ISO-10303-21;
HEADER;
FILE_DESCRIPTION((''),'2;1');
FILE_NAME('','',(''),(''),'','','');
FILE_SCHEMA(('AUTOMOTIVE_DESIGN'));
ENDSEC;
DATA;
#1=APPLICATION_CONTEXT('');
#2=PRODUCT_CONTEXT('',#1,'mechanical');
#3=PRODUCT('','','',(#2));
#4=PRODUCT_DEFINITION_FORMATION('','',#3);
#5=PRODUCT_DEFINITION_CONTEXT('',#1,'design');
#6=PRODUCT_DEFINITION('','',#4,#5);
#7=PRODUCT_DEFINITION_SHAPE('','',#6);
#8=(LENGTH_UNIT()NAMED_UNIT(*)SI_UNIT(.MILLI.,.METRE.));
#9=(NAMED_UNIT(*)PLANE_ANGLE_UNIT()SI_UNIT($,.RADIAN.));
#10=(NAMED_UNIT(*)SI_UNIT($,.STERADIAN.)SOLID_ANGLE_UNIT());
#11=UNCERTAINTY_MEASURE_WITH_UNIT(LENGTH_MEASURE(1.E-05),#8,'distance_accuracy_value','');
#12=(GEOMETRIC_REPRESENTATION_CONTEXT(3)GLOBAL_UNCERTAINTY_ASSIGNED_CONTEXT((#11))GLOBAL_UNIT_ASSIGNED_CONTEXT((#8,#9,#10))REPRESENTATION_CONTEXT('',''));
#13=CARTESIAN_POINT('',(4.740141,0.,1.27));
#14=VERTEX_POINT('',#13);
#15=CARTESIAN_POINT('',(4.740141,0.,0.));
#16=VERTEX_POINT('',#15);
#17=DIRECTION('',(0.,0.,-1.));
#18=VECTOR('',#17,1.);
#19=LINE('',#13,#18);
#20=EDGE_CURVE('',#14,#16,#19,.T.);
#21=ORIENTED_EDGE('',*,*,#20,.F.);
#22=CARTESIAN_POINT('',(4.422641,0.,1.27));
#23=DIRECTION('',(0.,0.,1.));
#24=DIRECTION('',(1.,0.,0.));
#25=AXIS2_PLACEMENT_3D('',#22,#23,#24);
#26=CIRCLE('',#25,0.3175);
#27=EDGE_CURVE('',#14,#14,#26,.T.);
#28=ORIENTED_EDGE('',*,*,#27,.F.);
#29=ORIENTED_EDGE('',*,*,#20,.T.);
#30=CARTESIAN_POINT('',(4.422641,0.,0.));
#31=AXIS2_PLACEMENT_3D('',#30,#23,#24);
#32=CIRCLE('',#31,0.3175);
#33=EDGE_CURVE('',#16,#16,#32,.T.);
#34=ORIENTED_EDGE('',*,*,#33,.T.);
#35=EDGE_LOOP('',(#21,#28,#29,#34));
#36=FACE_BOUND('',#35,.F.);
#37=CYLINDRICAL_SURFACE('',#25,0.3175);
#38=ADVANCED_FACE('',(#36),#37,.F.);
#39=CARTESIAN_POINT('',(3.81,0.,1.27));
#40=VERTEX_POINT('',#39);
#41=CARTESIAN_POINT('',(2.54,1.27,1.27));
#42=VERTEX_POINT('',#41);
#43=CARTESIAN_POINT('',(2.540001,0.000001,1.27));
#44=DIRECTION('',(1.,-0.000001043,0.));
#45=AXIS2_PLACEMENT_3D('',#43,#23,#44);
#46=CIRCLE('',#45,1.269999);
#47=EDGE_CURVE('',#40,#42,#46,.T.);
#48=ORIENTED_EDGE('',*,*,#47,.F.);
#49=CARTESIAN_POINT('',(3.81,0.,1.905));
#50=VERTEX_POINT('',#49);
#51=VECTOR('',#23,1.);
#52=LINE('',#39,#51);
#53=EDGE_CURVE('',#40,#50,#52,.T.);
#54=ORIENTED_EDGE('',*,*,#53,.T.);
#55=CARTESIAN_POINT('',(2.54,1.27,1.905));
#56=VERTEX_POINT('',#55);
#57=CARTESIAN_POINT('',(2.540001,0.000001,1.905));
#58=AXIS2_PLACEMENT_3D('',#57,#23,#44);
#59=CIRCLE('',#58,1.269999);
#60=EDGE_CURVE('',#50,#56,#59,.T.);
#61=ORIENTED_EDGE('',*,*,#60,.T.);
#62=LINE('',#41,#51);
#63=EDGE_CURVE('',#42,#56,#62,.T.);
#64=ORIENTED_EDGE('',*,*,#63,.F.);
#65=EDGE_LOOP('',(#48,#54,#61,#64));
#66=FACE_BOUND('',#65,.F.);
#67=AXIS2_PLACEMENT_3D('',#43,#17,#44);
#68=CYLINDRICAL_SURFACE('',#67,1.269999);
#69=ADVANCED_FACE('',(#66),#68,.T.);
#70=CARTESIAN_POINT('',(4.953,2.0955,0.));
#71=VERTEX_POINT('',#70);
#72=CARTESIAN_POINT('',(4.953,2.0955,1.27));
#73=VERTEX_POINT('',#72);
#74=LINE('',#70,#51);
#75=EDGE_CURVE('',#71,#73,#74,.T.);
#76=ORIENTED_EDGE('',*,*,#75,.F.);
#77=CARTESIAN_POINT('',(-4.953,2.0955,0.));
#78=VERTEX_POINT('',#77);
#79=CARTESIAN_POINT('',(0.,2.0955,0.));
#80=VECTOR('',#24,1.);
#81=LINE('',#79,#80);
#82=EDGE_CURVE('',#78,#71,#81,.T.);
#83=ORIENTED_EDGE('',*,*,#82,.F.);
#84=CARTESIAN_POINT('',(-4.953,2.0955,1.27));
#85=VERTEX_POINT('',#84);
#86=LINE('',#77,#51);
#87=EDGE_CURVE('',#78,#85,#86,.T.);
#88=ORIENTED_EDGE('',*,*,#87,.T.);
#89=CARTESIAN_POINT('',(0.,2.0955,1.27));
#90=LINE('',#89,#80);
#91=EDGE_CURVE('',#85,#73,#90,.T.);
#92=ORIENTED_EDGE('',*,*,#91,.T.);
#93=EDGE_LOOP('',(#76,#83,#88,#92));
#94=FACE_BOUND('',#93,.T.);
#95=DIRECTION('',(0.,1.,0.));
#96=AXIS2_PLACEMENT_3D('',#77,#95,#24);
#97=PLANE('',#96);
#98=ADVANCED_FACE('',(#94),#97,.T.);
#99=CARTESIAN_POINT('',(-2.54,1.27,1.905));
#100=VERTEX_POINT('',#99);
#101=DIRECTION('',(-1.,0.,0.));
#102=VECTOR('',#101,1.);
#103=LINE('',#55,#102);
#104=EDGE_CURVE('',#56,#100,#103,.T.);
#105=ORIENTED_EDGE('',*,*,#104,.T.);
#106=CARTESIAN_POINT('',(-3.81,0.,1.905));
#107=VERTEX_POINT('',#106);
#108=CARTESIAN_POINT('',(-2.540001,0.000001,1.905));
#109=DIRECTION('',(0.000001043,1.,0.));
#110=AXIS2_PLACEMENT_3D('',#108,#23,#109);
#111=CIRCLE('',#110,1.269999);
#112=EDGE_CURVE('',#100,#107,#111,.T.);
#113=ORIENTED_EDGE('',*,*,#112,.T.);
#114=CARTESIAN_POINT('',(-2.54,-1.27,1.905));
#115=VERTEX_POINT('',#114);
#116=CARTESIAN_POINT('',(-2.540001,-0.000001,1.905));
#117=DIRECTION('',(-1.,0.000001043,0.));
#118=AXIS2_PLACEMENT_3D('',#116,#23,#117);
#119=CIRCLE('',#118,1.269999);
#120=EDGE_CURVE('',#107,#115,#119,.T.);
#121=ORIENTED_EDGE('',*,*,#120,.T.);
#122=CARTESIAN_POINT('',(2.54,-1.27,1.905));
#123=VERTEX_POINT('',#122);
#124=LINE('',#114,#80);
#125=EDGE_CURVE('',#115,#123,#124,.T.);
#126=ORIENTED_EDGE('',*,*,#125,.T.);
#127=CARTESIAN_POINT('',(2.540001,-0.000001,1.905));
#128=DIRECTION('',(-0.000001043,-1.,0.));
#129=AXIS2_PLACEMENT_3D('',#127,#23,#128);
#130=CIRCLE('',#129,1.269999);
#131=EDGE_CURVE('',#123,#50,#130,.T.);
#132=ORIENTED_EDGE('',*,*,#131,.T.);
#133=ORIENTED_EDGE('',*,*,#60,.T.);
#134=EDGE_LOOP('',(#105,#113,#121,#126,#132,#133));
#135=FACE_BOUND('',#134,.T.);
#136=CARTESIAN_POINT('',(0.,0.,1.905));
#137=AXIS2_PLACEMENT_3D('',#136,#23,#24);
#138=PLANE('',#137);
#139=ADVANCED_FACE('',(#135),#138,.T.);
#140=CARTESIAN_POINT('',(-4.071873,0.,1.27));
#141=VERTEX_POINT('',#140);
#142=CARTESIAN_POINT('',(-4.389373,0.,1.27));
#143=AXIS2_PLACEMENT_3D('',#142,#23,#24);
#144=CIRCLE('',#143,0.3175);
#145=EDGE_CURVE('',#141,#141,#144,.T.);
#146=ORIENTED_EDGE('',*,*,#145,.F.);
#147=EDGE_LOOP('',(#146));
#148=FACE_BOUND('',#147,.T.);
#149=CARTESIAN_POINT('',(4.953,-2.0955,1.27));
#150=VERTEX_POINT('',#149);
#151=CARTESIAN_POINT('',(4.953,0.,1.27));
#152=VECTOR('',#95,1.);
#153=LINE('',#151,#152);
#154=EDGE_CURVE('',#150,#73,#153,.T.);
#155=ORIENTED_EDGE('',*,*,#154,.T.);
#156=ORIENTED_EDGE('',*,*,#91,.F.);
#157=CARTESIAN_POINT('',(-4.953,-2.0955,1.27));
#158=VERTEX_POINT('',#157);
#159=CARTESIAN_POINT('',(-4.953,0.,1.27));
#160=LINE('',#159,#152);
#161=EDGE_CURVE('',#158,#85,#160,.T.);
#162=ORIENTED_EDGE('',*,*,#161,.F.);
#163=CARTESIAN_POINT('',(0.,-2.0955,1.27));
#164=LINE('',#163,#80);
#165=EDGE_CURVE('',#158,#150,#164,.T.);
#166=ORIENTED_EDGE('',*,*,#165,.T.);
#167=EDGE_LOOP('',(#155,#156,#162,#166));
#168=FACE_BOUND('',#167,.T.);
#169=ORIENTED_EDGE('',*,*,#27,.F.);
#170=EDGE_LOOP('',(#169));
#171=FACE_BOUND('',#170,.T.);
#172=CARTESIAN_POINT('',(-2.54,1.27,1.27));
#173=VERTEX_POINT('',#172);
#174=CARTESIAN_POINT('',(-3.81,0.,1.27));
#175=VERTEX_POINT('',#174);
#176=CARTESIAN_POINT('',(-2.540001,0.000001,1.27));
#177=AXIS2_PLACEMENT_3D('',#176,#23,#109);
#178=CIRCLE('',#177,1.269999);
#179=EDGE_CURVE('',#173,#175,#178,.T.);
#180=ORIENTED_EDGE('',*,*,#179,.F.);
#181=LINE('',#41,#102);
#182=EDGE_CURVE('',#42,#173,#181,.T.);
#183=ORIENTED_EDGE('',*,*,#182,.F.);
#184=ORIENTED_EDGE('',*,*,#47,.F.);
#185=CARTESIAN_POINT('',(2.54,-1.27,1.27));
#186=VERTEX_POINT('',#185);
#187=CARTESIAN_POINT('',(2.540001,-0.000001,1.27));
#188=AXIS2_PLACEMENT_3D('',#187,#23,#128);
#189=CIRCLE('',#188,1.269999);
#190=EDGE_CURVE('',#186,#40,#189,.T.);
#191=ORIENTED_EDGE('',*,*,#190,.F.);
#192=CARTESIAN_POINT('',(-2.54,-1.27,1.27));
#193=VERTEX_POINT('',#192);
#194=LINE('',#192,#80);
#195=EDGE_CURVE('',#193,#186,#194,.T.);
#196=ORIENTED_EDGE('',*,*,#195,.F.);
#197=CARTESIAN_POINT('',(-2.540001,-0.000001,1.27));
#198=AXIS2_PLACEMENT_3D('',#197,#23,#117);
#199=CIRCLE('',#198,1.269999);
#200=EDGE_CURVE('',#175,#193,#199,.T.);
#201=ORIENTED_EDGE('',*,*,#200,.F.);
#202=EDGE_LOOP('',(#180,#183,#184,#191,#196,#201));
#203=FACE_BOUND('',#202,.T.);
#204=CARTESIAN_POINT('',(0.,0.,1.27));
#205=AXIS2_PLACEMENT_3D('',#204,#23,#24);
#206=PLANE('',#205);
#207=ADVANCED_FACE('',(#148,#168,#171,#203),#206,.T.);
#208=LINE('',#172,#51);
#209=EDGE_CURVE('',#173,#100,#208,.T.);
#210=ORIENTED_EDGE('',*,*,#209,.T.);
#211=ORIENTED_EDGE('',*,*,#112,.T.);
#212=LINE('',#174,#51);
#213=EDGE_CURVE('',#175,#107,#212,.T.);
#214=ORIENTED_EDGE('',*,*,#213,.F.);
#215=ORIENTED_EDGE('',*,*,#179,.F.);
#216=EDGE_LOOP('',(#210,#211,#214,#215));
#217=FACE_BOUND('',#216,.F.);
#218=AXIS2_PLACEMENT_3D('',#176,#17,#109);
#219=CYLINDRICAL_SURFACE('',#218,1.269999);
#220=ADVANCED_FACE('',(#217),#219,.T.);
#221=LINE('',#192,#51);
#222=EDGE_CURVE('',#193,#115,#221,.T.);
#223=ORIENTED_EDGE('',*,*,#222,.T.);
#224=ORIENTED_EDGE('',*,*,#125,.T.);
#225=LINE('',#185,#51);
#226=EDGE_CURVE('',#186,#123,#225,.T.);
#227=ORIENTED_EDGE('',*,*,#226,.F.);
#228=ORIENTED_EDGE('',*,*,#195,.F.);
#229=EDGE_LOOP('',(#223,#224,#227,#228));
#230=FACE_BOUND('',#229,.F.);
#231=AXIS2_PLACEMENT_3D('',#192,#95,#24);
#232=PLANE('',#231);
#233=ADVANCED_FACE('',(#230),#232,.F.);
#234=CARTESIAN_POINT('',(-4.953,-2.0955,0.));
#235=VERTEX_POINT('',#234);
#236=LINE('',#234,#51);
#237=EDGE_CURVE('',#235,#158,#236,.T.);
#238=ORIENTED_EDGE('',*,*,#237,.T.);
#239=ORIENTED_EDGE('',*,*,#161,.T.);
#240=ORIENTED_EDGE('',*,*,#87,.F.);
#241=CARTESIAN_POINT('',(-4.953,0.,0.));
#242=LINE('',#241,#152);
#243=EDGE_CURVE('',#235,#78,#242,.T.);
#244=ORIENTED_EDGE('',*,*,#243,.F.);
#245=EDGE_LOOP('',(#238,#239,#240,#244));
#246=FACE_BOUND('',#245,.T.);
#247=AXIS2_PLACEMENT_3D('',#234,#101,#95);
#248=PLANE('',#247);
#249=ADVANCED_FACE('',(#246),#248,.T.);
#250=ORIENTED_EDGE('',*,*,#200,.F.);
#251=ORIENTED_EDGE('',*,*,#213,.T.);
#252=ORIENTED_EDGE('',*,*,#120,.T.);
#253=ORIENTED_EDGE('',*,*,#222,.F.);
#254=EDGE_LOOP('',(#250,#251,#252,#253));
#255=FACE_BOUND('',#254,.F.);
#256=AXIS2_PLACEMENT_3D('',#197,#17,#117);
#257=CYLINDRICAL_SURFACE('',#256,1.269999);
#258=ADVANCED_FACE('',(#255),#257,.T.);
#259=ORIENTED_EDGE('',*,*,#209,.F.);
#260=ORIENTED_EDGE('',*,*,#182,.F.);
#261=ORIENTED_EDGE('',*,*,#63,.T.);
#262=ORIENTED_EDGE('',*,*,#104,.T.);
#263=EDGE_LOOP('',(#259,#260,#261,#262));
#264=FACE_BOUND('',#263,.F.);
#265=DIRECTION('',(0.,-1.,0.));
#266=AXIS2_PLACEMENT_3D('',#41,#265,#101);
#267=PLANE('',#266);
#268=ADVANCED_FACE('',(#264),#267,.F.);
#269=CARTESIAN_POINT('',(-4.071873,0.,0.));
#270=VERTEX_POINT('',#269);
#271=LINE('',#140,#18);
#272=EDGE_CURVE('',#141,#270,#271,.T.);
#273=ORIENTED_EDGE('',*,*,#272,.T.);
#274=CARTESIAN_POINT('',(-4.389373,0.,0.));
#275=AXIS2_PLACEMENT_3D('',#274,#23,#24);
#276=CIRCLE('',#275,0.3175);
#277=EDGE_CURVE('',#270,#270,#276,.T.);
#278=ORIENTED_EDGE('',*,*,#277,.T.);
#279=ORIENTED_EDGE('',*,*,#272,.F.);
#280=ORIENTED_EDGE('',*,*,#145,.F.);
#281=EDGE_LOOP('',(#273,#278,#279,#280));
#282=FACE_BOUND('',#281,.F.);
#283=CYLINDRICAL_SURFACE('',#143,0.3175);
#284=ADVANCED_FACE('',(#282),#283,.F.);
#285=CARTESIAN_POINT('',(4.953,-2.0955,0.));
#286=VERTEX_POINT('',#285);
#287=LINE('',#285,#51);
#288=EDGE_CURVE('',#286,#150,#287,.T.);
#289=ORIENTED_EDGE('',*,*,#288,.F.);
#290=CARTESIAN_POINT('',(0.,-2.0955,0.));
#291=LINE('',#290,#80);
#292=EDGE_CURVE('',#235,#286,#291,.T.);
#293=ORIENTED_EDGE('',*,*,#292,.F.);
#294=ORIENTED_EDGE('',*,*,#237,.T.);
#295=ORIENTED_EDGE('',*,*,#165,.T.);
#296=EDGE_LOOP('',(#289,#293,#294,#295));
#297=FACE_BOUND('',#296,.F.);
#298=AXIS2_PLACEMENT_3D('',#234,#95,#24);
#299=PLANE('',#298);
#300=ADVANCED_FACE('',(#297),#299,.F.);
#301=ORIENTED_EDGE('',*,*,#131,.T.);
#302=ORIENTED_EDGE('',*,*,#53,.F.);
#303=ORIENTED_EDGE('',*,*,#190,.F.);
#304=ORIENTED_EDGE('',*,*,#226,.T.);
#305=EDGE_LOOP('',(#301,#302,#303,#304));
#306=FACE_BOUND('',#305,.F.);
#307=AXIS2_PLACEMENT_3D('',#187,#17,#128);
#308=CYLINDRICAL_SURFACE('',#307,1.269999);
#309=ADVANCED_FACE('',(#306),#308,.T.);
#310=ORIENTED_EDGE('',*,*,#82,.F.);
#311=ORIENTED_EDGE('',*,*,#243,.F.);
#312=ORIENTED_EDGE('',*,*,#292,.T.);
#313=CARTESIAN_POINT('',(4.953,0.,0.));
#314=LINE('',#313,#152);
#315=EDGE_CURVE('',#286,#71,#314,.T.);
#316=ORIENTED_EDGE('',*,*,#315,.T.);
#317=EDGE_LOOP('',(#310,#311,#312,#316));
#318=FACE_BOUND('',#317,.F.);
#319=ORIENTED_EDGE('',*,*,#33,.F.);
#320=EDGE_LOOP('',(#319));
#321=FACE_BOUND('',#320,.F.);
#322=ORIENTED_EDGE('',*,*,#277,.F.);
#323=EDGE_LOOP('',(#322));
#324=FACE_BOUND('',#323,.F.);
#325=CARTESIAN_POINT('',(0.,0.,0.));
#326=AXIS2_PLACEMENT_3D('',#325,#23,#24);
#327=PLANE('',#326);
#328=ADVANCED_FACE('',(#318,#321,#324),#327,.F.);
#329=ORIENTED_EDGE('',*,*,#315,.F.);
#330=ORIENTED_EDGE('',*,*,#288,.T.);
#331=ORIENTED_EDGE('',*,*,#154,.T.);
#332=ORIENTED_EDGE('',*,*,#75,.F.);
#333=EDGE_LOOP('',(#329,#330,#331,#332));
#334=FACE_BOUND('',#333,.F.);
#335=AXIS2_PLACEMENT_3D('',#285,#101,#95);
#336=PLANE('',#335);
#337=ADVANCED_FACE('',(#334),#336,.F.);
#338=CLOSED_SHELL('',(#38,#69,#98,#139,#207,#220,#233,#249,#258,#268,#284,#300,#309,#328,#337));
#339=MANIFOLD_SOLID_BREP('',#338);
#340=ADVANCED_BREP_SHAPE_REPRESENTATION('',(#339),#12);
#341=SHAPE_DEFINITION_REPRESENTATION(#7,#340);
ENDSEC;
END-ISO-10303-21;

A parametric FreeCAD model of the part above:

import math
import FreeCAD as App
import Part
import Sketcher
from FreeCAD import Vector
Q = App.Units.Quantity

doc = App.newDocument("Part")
body = doc.addObject("PartDesign::Body", "Body")

# Sketch on XY plane
sketch1 = body.newObject("Sketcher::SketchObject", "Sketch")
sketch1.AttachmentSupport = (doc.getObject("XY_Plane"), [""])
sketch1.MapMode = "FlatFace"
sketch1.addGeometry(Part.LineSegment(Vector(-4.953, 2.0955, 0), Vector(-4.953, -2.0955, 0)), False)
sketch1.addGeometry(Part.LineSegment(Vector(-4.953, -2.0955, 0), Vector(4.953, -2.0955, 0)), False)
sketch1.addGeometry(Part.LineSegment(Vector(4.953, -2.0955, 0), Vector(4.953, 2.0955, 0)), False)
sketch1.addGeometry(Part.LineSegment(Vector(4.953, 2.0955, 0), Vector(-4.953, 2.0955, 0)), False)
sketch1.addConstraint(Sketcher.Constraint("Coincident", 0, 2, 1, 1))
sketch1.addConstraint(Sketcher.Constraint("Coincident", 1, 2, 2, 1))
sketch1.addConstraint(Sketcher.Constraint("Coincident", 2, 2, 3, 1))
sketch1.addConstraint(Sketcher.Constraint("Coincident", 3, 2, 0, 1))
sketch1.addConstraint(Sketcher.Constraint("Vertical", 0))
sketch1.addConstraint(Sketcher.Constraint("Horizontal", 1))
sketch1.addConstraint(Sketcher.Constraint("Vertical", 2))
sketch1.addConstraint(Sketcher.Constraint("Horizontal", 3))
sketch1.addConstraint(Sketcher.Constraint("Symmetric", 0, 2, 2, 2, -1, 1))
sketch1.addConstraint(Sketcher.Constraint("DistanceX", 1, 1, 1, 2, Q("0.39 in")))
sketch1.addConstraint(Sketcher.Constraint("DistanceY", 0, 2, 0, 1, Q("0.165 in")))
pad1 = body.newObject("PartDesign::Pad", "Pad")
pad1.Profile = sketch1
pad1.Length = Q("0.05 in")

# Sketch on XY plane
sketch2 = body.newObject("Sketcher::SketchObject", "Sketch001")
sketch2.AttachmentSupport = (doc.getObject("XY_Plane"), [""])
sketch2.MapMode = "FlatFace"
sketch2.AttachmentOffset = App.Placement(Vector(0, 0, 0.05 * 25.4), App.Rotation())
sketch2.addGeometry(Part.ArcOfCircle(Part.Circle(Vector(2.540001, 0.000001, 0), Vector(0, 0, 1), 1.269999), math.radians(-0.00006), math.radians(90.00006)), False)
sketch2.addGeometry(Part.LineSegment(Vector(2.54, 1.27, 0), Vector(-2.54, 1.27, 0)), False)
sketch2.addGeometry(Part.ArcOfCircle(Part.Circle(Vector(-2.540001, 0.000001, 0), Vector(0, 0, 1), 1.269999), math.radians(89.99994), math.radians(180.00006)), False)
sketch2.addGeometry(Part.ArcOfCircle(Part.Circle(Vector(-2.540001, -0.000001, 0), Vector(0, 0, 1), 1.269999), math.radians(179.99994), math.radians(270.00006)), False)
sketch2.addGeometry(Part.LineSegment(Vector(-2.54, -1.27, 0), Vector(2.54, -1.27, 0)), False)
sketch2.addGeometry(Part.ArcOfCircle(Part.Circle(Vector(2.540001, -0.000001, 0), Vector(0, 0, 1), 1.269999), math.radians(-90.00006), math.radians(0.00006)), False)
sketch2.addConstraint(Sketcher.Constraint("Tangent", 0, 2, 1, 1))
sketch2.addConstraint(Sketcher.Constraint("Tangent", 1, 2, 2, 1))
sketch2.addConstraint(Sketcher.Constraint("Coincident", 2, 2, 3, 1))
sketch2.addConstraint(Sketcher.Constraint("Tangent", 3, 2, 4, 1))
sketch2.addConstraint(Sketcher.Constraint("Tangent", 4, 2, 5, 1))
sketch2.addConstraint(Sketcher.Constraint("Coincident", 5, 2, 0, 1))
sketch2.addConstraint(Sketcher.Constraint("Horizontal", 1))
sketch2.addConstraint(Sketcher.Constraint("Horizontal", 4))
sketch2.addConstraint(Sketcher.Constraint("Coincident", 3, 3, 2, 3))
sketch2.addConstraint(Sketcher.Constraint("Coincident", 5, 3, 0, 3))
sketch2.addConstraint(Sketcher.Constraint("Symmetric", 0, 3, 2, 3, -1, 1))
sketch2.addConstraint(Sketcher.Constraint("PointOnObject", 2, 2, -1))
sketch2.addConstraint(Sketcher.Constraint("PointOnObject", 5, 2, -1))
sketch2.addConstraint(Sketcher.Constraint("Radius", 0, Q("0.0499999 in")))
sketch2.addConstraint(Sketcher.Constraint("DistanceX", 1, 2, 1, 1, Q("0.2 in")))
pad2 = body.newObject("PartDesign::Pad", "Pad001")
pad2.Profile = sketch2
pad2.Length = Q("0.025 in")

# Sketch on XY plane
sketch3 = body.newObject("Sketcher::SketchObject", "Sketch002")
sketch3.AttachmentSupport = (doc.getObject("XY_Plane"), [""])
sketch3.MapMode = "FlatFace"
sketch3.AttachmentOffset = App.Placement(Vector(0, 0, 0.05 * 25.4), App.Rotation())
sketch3.addGeometry(Part.Circle(Vector(4.422641, 0, 0), Vector(0, 0, 1), 0.3175), False)
sketch3.addGeometry(Part.Circle(Vector(-4.389373, 0, 0), Vector(0, 0, 1), 0.3175), False)
sketch3.addConstraint(Sketcher.Constraint("Equal", 0, 1))
sketch3.addConstraint(Sketcher.Constraint("PointOnObject", 0, 3, -1))
sketch3.addConstraint(Sketcher.Constraint("PointOnObject", 1, 3, -1))
sketch3.addConstraint(Sketcher.Constraint("Diameter", 0, Q("0.025 in")))
sketch3.addConstraint(Sketcher.Constraint("DistanceX", -1, 1, 0, 3, 4.422641))
sketch3.addConstraint(Sketcher.Constraint("DistanceX", 1, 3, -1, 1, 4.389373))
pocket1 = body.newObject("PartDesign::Pocket", "Pocket")
pocket1.Profile = sketch3
pocket1.Length = Q("1 in")

doc.recompute()
